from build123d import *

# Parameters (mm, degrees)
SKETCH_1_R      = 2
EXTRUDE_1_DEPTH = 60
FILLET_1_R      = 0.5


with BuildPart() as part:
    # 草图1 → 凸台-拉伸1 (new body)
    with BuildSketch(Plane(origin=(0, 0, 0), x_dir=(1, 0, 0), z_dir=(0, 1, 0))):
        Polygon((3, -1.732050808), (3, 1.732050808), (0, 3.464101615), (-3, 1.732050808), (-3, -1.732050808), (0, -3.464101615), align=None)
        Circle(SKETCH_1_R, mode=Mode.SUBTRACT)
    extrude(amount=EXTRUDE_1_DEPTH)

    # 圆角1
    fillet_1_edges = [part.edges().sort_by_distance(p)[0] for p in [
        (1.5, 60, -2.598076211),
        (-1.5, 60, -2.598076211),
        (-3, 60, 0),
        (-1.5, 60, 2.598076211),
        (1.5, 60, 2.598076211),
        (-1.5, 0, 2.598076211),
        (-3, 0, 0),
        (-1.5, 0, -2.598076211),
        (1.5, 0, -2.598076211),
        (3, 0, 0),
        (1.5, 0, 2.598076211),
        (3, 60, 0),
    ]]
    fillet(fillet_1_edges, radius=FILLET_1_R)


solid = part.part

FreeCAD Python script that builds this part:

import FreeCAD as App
import Part
import Sketcher

V = App.Vector
Q = App.Units.Quantity


def edges_at(feature, points):
    """Names of the edges that pass closest to the given points."""
    edges = feature.Shape.Edges
    near = lambda p: min(range(len(edges)), key=lambda i: edges[i].distToShape(Part.Vertex(*p))[0])
    return sorted({f"Edge{near(p) + 1}" for p in points})


def add_polygon(sketch, points):
    """Adds a closed chain of lines whose ends are joined by coincident constraints."""
    first, n = sketch.GeometryCount, len(points)
    for a, b in zip(points, points[1:] + points[:1]):
        sketch.addGeometry(Part.LineSegment(App.Vector(*a, 0), App.Vector(*b, 0)), False)
    for i in range(n):
        sketch.addConstraint(Sketcher.Constraint("Coincident", first + i, 2, first + (i + 1) % n, 1))

doc = App.newDocument("Part")
params = doc.addObject("Spreadsheet::Sheet", "Params")
for row, (alias, value) in enumerate([
    ("sketch1_diameter", "4 mm"),
    ("pad1_length", "60 mm"),
    ("fillet_radius", "0.5 mm"),
], start=1):
    params.set(f"A{row}", alias)
    params.set(f"B{row}", "=" + value)
    params.setAlias(f"B{row}", alias)

body = doc.addObject("PartDesign::Body", "Body")

sketch1 = body.newObject("Sketcher::SketchObject", "Sketch")
sketch1.AttachmentSupport = (doc.getObject("XZ_Plane"), [""])
sketch1.MapMode = "FlatFace"
add_polygon(sketch1, [(3, 1.7), (3, -1.7), (0, -3.5), (-3, -1.7), (-3, 1.7), (0, 3.5)])
sketch1.addGeometry(Part.Circle(V(0, 0, 0), V(0, 0, 1), 2), False)
sketch1.addConstraint([
    Sketcher.Constraint("Vertical", 0),
    Sketcher.Constraint("Vertical", 3),
    Sketcher.Constraint("Coincident", 6, 3, -1, 1),
    Sketcher.Constraint("Symmetric", 0, 2, 3, 2, -1, 1),
    Sketcher.Constraint("Symmetric", 1, 2, 4, 2, -1, 1),
    Sketcher.Constraint("PointOnObject", 1, 2, -2),
    Sketcher.Constraint("Parallel", 2, 5),
    Sketcher.Constraint("Horizontal", 0, 2, 2, 2),
    Sketcher.Constraint("Diameter", 6, Q("4 mm")),
    Sketcher.Constraint("Angle", 1, Q("-150 deg")),
    Sketcher.Constraint("DistanceX", -1, 1, 0, 2, Q("3 mm")),
    Sketcher.Constraint("DistanceY", 0, 2, 0, 1, Q("3.464102 mm")),
])
sketch1.setExpression("Constraints[14]", "Params.sketch1_diameter")
pad1 = body.newObject("PartDesign::Pad", "Pad")
pad1.Profile = sketch1
pad1.setExpression("Length", "Params.pad1_length")
pad1.Reversed = True
doc.recompute()

fillet = body.newObject("PartDesign::Fillet", "Fillet")
fillet.Base = (pad1, edges_at(pad1, [
    (1.5, 60, -2.598),
    (-1.5, 60, -2.598),
    (-3, 60, 0),
    (-1.5, 60, 2.598),
    (1.5, 60, 2.598),
    (-1.5, 0, 2.598),
    (-3, 0, 0),
    (-1.5, 0, -2.598),
    (1.5, 0, -2.598),
    (3, 0, 0),
    (1.5, 0, 2.598),
    (3, 60, 0),
]))
fillet.setExpression("Radius", "Params.fillet_radius")

doc.recompute()
